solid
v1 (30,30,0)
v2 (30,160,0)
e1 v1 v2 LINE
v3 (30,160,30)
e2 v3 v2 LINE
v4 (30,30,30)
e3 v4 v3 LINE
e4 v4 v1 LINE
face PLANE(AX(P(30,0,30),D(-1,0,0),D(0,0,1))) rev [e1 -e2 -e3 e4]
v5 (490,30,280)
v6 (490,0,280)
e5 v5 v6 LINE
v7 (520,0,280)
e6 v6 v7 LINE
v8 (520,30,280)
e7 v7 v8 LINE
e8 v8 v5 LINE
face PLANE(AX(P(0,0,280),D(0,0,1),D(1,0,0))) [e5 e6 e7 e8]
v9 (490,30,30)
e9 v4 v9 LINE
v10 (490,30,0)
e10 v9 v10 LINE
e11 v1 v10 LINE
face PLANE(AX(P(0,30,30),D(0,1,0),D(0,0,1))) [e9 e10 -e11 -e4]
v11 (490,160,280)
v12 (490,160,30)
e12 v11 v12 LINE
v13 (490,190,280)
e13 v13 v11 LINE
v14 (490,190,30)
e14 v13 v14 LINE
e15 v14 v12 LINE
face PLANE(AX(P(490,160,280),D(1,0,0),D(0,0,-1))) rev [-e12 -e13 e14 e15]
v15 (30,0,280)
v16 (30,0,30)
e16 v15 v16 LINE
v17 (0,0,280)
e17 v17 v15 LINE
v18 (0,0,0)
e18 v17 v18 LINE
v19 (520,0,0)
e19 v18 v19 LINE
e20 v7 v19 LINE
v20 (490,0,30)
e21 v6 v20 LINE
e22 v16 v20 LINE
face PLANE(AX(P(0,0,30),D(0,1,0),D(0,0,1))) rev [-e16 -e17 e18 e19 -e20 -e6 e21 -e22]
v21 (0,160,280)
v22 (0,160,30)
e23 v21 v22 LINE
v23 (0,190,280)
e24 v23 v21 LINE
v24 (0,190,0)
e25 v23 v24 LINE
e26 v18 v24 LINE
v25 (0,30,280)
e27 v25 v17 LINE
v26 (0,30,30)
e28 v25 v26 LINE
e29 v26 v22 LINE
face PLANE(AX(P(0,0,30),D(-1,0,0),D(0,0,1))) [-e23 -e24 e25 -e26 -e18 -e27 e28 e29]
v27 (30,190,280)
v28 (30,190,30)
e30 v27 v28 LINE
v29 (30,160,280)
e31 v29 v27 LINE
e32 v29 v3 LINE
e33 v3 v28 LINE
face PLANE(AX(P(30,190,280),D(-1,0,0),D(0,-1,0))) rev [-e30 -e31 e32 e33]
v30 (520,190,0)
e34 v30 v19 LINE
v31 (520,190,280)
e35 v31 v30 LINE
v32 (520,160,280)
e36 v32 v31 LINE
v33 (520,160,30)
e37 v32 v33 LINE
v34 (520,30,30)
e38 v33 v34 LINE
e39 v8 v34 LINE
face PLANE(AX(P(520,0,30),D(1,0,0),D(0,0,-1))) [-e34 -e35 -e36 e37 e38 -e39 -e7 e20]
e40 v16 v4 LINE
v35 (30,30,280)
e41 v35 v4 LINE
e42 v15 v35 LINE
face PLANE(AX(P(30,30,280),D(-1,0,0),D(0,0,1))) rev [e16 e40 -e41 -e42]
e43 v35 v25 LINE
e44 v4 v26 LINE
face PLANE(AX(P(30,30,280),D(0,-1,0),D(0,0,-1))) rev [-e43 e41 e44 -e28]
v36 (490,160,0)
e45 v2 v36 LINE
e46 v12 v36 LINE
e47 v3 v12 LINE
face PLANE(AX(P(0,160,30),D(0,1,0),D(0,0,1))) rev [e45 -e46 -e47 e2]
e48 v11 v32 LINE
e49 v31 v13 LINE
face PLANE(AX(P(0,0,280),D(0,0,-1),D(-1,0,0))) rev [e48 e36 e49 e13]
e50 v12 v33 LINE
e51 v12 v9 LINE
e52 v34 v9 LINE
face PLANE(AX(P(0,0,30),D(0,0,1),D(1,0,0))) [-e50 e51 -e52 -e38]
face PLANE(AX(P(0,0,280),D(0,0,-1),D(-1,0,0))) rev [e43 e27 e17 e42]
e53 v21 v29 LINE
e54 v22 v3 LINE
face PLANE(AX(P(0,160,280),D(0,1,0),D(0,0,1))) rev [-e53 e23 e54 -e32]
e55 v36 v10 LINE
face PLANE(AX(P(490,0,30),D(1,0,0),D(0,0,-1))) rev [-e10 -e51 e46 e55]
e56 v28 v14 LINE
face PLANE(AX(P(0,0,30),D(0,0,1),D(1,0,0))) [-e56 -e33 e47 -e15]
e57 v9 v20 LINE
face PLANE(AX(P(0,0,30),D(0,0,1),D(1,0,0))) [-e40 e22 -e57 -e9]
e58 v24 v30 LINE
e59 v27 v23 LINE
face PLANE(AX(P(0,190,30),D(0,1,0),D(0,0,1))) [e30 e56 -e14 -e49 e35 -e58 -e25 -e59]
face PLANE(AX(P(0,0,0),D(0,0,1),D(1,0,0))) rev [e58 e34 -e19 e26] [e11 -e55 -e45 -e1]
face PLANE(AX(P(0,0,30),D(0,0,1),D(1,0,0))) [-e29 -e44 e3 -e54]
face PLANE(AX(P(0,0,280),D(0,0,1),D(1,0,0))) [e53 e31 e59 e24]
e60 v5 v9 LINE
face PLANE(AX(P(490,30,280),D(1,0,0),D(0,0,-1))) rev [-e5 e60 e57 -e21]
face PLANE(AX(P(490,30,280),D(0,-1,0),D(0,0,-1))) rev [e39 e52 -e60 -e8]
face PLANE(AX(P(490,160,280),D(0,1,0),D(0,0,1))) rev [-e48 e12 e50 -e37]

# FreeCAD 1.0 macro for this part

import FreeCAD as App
import Part
import Sketcher

V = App.Vector

doc = App.newDocument("Part")
body = doc.addObject("PartDesign::Body", "Body")

# Sketch on XY plane
sketch1 = body.newObject("Sketcher::SketchObject", "Sketch")
sketch1.AttachmentSupport = (doc.getObject("XY_Plane"), [""])
sketch1.MapMode = "FlatFace"
sketch1.addGeometry(Part.LineSegment(V(0, 190, 0), V(0, 0, 0)), False)
sketch1.addGeometry(Part.LineSegment(V(0, 0, 0), V(520, 0, 0)), False)
sketch1.addGeometry(Part.LineSegment(V(520, 0, 0), V(520, 190, 0)), False)
sketch1.addGeometry(Part.LineSegment(V(520, 190, 0), V(0, 190, 0)), False)
sketch1.addGeometry(Part.LineSegment(V(490, 30, 0), V(30, 30, 0)), False)
sketch1.addGeometry(Part.LineSegment(V(30, 30, 0), V(30, 160, 0)), False)
sketch1.addGeometry(Part.LineSegment(V(30, 160, 0), V(490, 160, 0)), False)
sketch1.addGeometry(Part.LineSegment(V(490, 160, 0), V(490, 30, 0)), False)
sketch1.addConstraint(Sketcher.Constraint("Coincident", 0, 2, 1, 1))
sketch1.addConstraint(Sketcher.Constraint("Coincident", 1, 2, 2, 1))
sketch1.addConstraint(Sketcher.Constraint("Coincident", 2, 2, 3, 1))
sketch1.addConstraint(Sketcher.Constraint("Coincident", 3, 2, 0, 1))
sketch1.addConstraint(Sketcher.Constraint("Coincident", 4, 2, 5, 1))
sketch1.addConstraint(Sketcher.Constraint("Coincident", 5, 2, 6, 1))
sketch1.addConstraint(Sketcher.Constraint("Coincident", 6, 2, 7, 1))
sketch1.addConstraint(Sketcher.Constraint("Coincident", 7, 2, 4, 1))
sketch1.addConstraint(Sketcher.Constraint("Vertical", 0))
sketch1.addConstraint(Sketcher.Constraint("Horizontal", 1))
sketch1.addConstraint(Sketcher.Constraint("Vertical", 2))
sketch1.addConstraint(Sketcher.Constraint("Horizontal", 3))
sketch1.addConstraint(Sketcher.Constraint("Horizontal", 4))
sketch1.addConstraint(Sketcher.Constraint("Vertical", 5))
sketch1.addConstraint(Sketcher.Constraint("Horizontal", 6))
sketch1.addConstraint(Sketcher.Constraint("Vertical", 7))
sketch1.addConstraint(Sketcher.Constraint("Coincident", 0, 2, -1, 1))
sketch1.addConstraint(Sketcher.Constraint("DistanceX", 1, 1, 1, 2, 520.0))
sketch1.addConstraint(Sketcher.Constraint("DistanceX", 4, 2, 4, 1, 460.0))
sketch1.addConstraint(Sketcher.Constraint("DistanceY", 0, 2, 0, 1, 190.0))
sketch1.addConstraint(Sketcher.Constraint("DistanceY", 5, 1, 5, 2, 130.0))
sketch1.addConstraint(Sketcher.Constraint("DistanceX", -1, 1, 4, 2, 30.0))
sketch1.addConstraint(Sketcher.Constraint("DistanceY", -1, 1, 4, 2, 30.0))
pad1 = body.newObject("PartDesign::Pad", "Pad")
pad1.Profile = sketch1
pad1.Length = 30

# Sketch on XY plane
sketch2 = body.newObject("Sketcher::SketchObject", "Sketch001")
sketch2.AttachmentSupport = (doc.getObject("XY_Plane"), [""])
sketch2.MapMode = "FlatFace"
sketch2.AttachmentOffset = App.Placement(V(0, 0, 30), App.Rotation())
sketch2.addGeometry(Part.LineSegment(V(0, 190, 0), V(0, 160, 0)), False)
sketch2.addGeometry(Part.LineSegment(V(0, 160, 0), V(30, 160, 0)), False)
sketch2.addGeometry(Part.LineSegment(V(30, 160, 0), V(30, 190, 0)), False)
sketch2.addGeometry(Part.LineSegment(V(30, 190, 0), V(0, 190, 0)), False)
sketch2.addGeometry(Part.LineSegment(V(0, 30, 0), V(0, 0, 0)), False)
sketch2.addGeometry(Part.LineSegment(V(0, 0, 0), V(30, 0, 0)), False)
sketch2.addGeometry(Part.LineSegment(V(30, 0, 0), V(30, 30, 0)), False)
sketch2.addGeometry(Part.LineSegment(V(30, 30, 0), V(0, 30, 0)), False)
sketch2.addGeometry(Part.LineSegment(V(490, 190, 0), V(490, 160, 0)), False)
sketch2.addGeometry(Part.LineSegment(V(490, 160, 0), V(520, 160, 0)), False)
sketch2.addGeometry(Part.LineSegment(V(520, 160, 0), V(520, 190, 0)), False)
sketch2.addGeometry(Part.LineSegment(V(520, 190, 0), V(490, 190, 0)), False)
sketch2.addGeometry(Part.LineSegment(V(490, 30, 0), V(490, 0, 0)), False)
sketch2.addGeometry(Part.LineSegment(V(490, 0, 0), V(520, 0, 0)), False)
sketch2.addGeometry(Part.LineSegment(V(520, 0, 0), V(520, 30, 0)), False)
sketch2.addGeometry(Part.LineSegment(V(520, 30, 0), V(490, 30, 0)), False)
sketch2.addConstraint(Sketcher.Constraint("Coincident", 0, 2, 1, 1))
sketch2.addConstraint(Sketcher.Constraint("Coincident", 1, 2, 2, 1))
sketch2.addConstraint(Sketcher.Constraint("Coincident", 2, 2, 3, 1))
sketch2.addConstraint(Sketcher.Constraint("Coincident", 3, 2, 0, 1))
sketch2.addConstraint(Sketcher.Constraint("Coincident", 4, 2, 5, 1))
sketch2.addConstraint(Sketcher.Constraint("Coincident", 5, 2, 6, 1))
sketch2.addConstraint(Sketcher.Constraint("Coincident", 6, 2, 7, 1))
sketch2.addConstraint(Sketcher.Constraint("Coincident", 7, 2, 4, 1))
sketch2.addConstraint(Sketcher.Constraint("Coincident", 8, 2, 9, 1))
sketch2.addConstraint(Sketcher.Constraint("Coincident", 9, 2, 10, 1))
sketch2.addConstraint(Sketcher.Constraint("Coincident", 10, 2, 11, 1))
sketch2.addConstraint(Sketcher.Constraint("Coincident", 11, 2, 8, 1))
sketch2.addConstraint(Sketcher.Constraint("Coincident", 12, 2, 13, 1))
sketch2.addConstraint(Sketcher.Constraint("Coincident", 13, 2, 14, 1))
sketch2.addConstraint(Sketcher.Constraint("Coincident", 14, 2, 15, 1))
sketch2.addConstraint(Sketcher.Constraint("Coincident", 15, 2, 12, 1))
sketch2.addConstraint(Sketcher.Constraint("Vertical", 0))
sketch2.addConstraint(Sketcher.Constraint("Horizontal", 1))
sketch2.addConstraint(Sketcher.Constraint("Vertical", 2))
sketch2.addConstraint(Sketcher.Constraint("Horizontal", 3))
sketch2.addConstraint(Sketcher.Constraint("Vertical", 4))
sketch2.addConstraint(Sketcher.Constraint("Horizontal", 5))
sketch2.addConstraint(Sketcher.Constraint("Vertical", 6))
sketch2.addConstraint(Sketcher.Constraint("Horizontal", 7))
sketch2.addConstraint(Sketcher.Constraint("Vertical", 8))
sketch2.addConstraint(Sketcher.Constraint("Horizontal", 9))
sketch2.addConstraint(Sketcher.Constraint("Vertical", 10))
sketch2.addConstraint(Sketcher.Constraint("Horizontal", 11))
sketch2.addConstraint(Sketcher.Constraint("Vertical", 12))
sketch2.addConstraint(Sketcher.Constraint("Horizontal", 13))
sketch2.addConstraint(Sketcher.Constraint("Vertical", 14))
sketch2.addConstraint(Sketcher.Constraint("Horizontal", 15))
sketch2.addConstraint(Sketcher.Constraint("Coincident", 4, 2, -1, 1))
sketch2.addConstraint(Sketcher.Constraint("PointOnObject", 0, 2, -2))
sketch2.addConstraint(Sketcher.Constraint("PointOnObject", 12, 2, -1))
sketch2.addConstraint(Sketcher.Constraint("Horizontal", 1, 2, 8, 2))
sketch2.addConstraint(Sketcher.Constraint("Horizontal", 3, 2, 10, 2))
sketch2.addConstraint(Sketcher.Constraint("Horizontal", 7, 2, 14, 2))
sketch2.addConstraint(Sketcher.Constraint("Vertical", 2, 2, 5, 2))
sketch2.addConstraint(Sketcher.Constraint("Vertical", 11, 2, 12, 2))
sketch2.addConstraint(Sketcher.Constraint("Vertical", 10, 2, 13, 2))
sketch2.addConstraint(Sketcher.Constraint("Equal", 7, 9))
sketch2.addConstraint(Sketcher.Constraint("Equal", 15, 0))
sketch2.addConstraint(Sketcher.Constraint("Equal", 2, 4))
sketch2.addConstraint(Sketcher.Constraint("DistanceX", 1, 1, 1, 2, 30.0))
sketch2.addConstraint(Sketcher.Constraint("DistanceY", -1, 1, 0, 2, 160.0))
sketch2.addConstraint(Sketcher.Constraint("DistanceX", -1, 1, 8, 2, 490.0))
pad2 = body.newObject("PartDesign::Pad", "Pad001")
pad2.Profile = sketch2
pad2.Length = 250

doc.recompute()
